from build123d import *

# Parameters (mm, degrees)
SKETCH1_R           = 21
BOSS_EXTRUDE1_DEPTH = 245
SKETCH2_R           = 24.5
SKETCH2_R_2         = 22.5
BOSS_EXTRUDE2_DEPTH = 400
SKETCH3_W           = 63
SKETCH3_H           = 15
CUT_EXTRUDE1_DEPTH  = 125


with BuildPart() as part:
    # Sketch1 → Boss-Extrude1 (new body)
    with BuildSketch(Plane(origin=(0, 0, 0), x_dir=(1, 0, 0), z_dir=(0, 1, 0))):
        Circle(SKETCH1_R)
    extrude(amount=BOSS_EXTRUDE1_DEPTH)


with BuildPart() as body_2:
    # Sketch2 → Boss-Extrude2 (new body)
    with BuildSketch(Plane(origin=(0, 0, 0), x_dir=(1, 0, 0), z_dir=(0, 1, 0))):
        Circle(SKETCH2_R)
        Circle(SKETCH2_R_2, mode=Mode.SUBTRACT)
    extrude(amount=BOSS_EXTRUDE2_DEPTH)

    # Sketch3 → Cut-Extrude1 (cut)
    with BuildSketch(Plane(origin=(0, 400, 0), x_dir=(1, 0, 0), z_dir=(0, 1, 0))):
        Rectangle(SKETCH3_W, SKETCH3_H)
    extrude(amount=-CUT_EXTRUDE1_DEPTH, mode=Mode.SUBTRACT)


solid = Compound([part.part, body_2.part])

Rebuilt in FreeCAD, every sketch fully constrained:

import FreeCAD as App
import Part
import Sketcher

V = App.Vector
Q = App.Units.Quantity


def add_polygon(sketch, points):
    """Adds a closed chain of lines whose ends are joined by coincident constraints."""
    first, n = sketch.GeometryCount, len(points)
    for a, b in zip(points, points[1:] + points[:1]):
        sketch.addGeometry(Part.LineSegment(App.Vector(*a, 0), App.Vector(*b, 0)), False)
    for i in range(n):
        sketch.addConstraint(Sketcher.Constraint("Coincident", first + i, 2, first + (i + 1) % n, 1))

doc = App.newDocument("Part")
body = doc.addObject("PartDesign::Body", "Body")

# Sketch on XZ plane
sketch1 = body.newObject("Sketcher::SketchObject", "Sketch")
sketch1.AttachmentSupport = (doc.getObject("XZ_Plane"), [""])
sketch1.MapMode = "FlatFace"
sketch1.addGeometry(Part.Circle(V(0, 0, 0), V(0, 0, 1), 21), False)
sketch1.addConstraint([
    Sketcher.Constraint("Coincident", 0, 3, -1, 1),
    Sketcher.Constraint("Diameter", 0, Q("42 mm")),
])
pad1 = body.newObject("PartDesign::Pad", "Pad")
pad1.Profile = sketch1
pad1.Length = 245
pad1.Reversed = True
body2 = doc.addObject("PartDesign::Body", "Body001")

# Sketch on XZ plane
sketch2 = body2.newObject("Sketcher::SketchObject", "Sketch001")
sketch2.AttachmentSupport = (doc.getObject("XZ_Plane001"), [""])
sketch2.MapMode = "FlatFace"
sketch2.addGeometry([
    Part.Circle(V(0, 0, 0), V(0, 0, 1), 24),
    Part.Circle(V(0, 0, 0), V(0, 0, 1), 22),
], False)
sketch2.addConstraint([
    Sketcher.Constraint("Coincident", 0, 3, -1, 1),
    Sketcher.Constraint("Coincident", 1, 3, -1, 1),
    Sketcher.Constraint("Diameter", 0, Q("49 mm")),
    Sketcher.Constraint("Diameter", 1, Q("45 mm")),
])
pad2 = body2.newObject("PartDesign::Pad", "Pad001")
pad2.Profile = sketch2
pad2.Length = 400
pad2.Reversed = True

# Sketch on XZ plane
sketch3 = body2.newObject("Sketcher::SketchObject", "Sketch002")
sketch3.AttachmentSupport = (doc.getObject("XZ_Plane001"), [""])
sketch3.MapMode = "FlatFace"
sketch3.AttachmentOffset = App.Placement(V(0, 0, -400), App.Rotation())
add_polygon(sketch3, [(-32, -8), (-32, 8), (32, 8), (32, -8)])  # lines 0-3
sketch3.addConstraint([
    Sketcher.Constraint("Vertical", 0),
    Sketcher.Constraint("Horizontal", 1),
    Sketcher.Constraint("Vertical", 2),
    Sketcher.Constraint("Horizontal", 3),
    Sketcher.Constraint("Symmetric", 0, 2, 2, 2, -1, 1),
    Sketcher.Constraint("DistanceX", 1, 1, 1, 2, Q("63 mm")),
    Sketcher.Constraint("DistanceY", 0, 1, 0, 2, Q("15 mm")),
])
pocket1 = body2.newObject("PartDesign::Pocket", "Pocket")
pocket1.Profile = sketch3
pocket1.Length = 125
pocket1.Reversed = True

doc.recompute()
